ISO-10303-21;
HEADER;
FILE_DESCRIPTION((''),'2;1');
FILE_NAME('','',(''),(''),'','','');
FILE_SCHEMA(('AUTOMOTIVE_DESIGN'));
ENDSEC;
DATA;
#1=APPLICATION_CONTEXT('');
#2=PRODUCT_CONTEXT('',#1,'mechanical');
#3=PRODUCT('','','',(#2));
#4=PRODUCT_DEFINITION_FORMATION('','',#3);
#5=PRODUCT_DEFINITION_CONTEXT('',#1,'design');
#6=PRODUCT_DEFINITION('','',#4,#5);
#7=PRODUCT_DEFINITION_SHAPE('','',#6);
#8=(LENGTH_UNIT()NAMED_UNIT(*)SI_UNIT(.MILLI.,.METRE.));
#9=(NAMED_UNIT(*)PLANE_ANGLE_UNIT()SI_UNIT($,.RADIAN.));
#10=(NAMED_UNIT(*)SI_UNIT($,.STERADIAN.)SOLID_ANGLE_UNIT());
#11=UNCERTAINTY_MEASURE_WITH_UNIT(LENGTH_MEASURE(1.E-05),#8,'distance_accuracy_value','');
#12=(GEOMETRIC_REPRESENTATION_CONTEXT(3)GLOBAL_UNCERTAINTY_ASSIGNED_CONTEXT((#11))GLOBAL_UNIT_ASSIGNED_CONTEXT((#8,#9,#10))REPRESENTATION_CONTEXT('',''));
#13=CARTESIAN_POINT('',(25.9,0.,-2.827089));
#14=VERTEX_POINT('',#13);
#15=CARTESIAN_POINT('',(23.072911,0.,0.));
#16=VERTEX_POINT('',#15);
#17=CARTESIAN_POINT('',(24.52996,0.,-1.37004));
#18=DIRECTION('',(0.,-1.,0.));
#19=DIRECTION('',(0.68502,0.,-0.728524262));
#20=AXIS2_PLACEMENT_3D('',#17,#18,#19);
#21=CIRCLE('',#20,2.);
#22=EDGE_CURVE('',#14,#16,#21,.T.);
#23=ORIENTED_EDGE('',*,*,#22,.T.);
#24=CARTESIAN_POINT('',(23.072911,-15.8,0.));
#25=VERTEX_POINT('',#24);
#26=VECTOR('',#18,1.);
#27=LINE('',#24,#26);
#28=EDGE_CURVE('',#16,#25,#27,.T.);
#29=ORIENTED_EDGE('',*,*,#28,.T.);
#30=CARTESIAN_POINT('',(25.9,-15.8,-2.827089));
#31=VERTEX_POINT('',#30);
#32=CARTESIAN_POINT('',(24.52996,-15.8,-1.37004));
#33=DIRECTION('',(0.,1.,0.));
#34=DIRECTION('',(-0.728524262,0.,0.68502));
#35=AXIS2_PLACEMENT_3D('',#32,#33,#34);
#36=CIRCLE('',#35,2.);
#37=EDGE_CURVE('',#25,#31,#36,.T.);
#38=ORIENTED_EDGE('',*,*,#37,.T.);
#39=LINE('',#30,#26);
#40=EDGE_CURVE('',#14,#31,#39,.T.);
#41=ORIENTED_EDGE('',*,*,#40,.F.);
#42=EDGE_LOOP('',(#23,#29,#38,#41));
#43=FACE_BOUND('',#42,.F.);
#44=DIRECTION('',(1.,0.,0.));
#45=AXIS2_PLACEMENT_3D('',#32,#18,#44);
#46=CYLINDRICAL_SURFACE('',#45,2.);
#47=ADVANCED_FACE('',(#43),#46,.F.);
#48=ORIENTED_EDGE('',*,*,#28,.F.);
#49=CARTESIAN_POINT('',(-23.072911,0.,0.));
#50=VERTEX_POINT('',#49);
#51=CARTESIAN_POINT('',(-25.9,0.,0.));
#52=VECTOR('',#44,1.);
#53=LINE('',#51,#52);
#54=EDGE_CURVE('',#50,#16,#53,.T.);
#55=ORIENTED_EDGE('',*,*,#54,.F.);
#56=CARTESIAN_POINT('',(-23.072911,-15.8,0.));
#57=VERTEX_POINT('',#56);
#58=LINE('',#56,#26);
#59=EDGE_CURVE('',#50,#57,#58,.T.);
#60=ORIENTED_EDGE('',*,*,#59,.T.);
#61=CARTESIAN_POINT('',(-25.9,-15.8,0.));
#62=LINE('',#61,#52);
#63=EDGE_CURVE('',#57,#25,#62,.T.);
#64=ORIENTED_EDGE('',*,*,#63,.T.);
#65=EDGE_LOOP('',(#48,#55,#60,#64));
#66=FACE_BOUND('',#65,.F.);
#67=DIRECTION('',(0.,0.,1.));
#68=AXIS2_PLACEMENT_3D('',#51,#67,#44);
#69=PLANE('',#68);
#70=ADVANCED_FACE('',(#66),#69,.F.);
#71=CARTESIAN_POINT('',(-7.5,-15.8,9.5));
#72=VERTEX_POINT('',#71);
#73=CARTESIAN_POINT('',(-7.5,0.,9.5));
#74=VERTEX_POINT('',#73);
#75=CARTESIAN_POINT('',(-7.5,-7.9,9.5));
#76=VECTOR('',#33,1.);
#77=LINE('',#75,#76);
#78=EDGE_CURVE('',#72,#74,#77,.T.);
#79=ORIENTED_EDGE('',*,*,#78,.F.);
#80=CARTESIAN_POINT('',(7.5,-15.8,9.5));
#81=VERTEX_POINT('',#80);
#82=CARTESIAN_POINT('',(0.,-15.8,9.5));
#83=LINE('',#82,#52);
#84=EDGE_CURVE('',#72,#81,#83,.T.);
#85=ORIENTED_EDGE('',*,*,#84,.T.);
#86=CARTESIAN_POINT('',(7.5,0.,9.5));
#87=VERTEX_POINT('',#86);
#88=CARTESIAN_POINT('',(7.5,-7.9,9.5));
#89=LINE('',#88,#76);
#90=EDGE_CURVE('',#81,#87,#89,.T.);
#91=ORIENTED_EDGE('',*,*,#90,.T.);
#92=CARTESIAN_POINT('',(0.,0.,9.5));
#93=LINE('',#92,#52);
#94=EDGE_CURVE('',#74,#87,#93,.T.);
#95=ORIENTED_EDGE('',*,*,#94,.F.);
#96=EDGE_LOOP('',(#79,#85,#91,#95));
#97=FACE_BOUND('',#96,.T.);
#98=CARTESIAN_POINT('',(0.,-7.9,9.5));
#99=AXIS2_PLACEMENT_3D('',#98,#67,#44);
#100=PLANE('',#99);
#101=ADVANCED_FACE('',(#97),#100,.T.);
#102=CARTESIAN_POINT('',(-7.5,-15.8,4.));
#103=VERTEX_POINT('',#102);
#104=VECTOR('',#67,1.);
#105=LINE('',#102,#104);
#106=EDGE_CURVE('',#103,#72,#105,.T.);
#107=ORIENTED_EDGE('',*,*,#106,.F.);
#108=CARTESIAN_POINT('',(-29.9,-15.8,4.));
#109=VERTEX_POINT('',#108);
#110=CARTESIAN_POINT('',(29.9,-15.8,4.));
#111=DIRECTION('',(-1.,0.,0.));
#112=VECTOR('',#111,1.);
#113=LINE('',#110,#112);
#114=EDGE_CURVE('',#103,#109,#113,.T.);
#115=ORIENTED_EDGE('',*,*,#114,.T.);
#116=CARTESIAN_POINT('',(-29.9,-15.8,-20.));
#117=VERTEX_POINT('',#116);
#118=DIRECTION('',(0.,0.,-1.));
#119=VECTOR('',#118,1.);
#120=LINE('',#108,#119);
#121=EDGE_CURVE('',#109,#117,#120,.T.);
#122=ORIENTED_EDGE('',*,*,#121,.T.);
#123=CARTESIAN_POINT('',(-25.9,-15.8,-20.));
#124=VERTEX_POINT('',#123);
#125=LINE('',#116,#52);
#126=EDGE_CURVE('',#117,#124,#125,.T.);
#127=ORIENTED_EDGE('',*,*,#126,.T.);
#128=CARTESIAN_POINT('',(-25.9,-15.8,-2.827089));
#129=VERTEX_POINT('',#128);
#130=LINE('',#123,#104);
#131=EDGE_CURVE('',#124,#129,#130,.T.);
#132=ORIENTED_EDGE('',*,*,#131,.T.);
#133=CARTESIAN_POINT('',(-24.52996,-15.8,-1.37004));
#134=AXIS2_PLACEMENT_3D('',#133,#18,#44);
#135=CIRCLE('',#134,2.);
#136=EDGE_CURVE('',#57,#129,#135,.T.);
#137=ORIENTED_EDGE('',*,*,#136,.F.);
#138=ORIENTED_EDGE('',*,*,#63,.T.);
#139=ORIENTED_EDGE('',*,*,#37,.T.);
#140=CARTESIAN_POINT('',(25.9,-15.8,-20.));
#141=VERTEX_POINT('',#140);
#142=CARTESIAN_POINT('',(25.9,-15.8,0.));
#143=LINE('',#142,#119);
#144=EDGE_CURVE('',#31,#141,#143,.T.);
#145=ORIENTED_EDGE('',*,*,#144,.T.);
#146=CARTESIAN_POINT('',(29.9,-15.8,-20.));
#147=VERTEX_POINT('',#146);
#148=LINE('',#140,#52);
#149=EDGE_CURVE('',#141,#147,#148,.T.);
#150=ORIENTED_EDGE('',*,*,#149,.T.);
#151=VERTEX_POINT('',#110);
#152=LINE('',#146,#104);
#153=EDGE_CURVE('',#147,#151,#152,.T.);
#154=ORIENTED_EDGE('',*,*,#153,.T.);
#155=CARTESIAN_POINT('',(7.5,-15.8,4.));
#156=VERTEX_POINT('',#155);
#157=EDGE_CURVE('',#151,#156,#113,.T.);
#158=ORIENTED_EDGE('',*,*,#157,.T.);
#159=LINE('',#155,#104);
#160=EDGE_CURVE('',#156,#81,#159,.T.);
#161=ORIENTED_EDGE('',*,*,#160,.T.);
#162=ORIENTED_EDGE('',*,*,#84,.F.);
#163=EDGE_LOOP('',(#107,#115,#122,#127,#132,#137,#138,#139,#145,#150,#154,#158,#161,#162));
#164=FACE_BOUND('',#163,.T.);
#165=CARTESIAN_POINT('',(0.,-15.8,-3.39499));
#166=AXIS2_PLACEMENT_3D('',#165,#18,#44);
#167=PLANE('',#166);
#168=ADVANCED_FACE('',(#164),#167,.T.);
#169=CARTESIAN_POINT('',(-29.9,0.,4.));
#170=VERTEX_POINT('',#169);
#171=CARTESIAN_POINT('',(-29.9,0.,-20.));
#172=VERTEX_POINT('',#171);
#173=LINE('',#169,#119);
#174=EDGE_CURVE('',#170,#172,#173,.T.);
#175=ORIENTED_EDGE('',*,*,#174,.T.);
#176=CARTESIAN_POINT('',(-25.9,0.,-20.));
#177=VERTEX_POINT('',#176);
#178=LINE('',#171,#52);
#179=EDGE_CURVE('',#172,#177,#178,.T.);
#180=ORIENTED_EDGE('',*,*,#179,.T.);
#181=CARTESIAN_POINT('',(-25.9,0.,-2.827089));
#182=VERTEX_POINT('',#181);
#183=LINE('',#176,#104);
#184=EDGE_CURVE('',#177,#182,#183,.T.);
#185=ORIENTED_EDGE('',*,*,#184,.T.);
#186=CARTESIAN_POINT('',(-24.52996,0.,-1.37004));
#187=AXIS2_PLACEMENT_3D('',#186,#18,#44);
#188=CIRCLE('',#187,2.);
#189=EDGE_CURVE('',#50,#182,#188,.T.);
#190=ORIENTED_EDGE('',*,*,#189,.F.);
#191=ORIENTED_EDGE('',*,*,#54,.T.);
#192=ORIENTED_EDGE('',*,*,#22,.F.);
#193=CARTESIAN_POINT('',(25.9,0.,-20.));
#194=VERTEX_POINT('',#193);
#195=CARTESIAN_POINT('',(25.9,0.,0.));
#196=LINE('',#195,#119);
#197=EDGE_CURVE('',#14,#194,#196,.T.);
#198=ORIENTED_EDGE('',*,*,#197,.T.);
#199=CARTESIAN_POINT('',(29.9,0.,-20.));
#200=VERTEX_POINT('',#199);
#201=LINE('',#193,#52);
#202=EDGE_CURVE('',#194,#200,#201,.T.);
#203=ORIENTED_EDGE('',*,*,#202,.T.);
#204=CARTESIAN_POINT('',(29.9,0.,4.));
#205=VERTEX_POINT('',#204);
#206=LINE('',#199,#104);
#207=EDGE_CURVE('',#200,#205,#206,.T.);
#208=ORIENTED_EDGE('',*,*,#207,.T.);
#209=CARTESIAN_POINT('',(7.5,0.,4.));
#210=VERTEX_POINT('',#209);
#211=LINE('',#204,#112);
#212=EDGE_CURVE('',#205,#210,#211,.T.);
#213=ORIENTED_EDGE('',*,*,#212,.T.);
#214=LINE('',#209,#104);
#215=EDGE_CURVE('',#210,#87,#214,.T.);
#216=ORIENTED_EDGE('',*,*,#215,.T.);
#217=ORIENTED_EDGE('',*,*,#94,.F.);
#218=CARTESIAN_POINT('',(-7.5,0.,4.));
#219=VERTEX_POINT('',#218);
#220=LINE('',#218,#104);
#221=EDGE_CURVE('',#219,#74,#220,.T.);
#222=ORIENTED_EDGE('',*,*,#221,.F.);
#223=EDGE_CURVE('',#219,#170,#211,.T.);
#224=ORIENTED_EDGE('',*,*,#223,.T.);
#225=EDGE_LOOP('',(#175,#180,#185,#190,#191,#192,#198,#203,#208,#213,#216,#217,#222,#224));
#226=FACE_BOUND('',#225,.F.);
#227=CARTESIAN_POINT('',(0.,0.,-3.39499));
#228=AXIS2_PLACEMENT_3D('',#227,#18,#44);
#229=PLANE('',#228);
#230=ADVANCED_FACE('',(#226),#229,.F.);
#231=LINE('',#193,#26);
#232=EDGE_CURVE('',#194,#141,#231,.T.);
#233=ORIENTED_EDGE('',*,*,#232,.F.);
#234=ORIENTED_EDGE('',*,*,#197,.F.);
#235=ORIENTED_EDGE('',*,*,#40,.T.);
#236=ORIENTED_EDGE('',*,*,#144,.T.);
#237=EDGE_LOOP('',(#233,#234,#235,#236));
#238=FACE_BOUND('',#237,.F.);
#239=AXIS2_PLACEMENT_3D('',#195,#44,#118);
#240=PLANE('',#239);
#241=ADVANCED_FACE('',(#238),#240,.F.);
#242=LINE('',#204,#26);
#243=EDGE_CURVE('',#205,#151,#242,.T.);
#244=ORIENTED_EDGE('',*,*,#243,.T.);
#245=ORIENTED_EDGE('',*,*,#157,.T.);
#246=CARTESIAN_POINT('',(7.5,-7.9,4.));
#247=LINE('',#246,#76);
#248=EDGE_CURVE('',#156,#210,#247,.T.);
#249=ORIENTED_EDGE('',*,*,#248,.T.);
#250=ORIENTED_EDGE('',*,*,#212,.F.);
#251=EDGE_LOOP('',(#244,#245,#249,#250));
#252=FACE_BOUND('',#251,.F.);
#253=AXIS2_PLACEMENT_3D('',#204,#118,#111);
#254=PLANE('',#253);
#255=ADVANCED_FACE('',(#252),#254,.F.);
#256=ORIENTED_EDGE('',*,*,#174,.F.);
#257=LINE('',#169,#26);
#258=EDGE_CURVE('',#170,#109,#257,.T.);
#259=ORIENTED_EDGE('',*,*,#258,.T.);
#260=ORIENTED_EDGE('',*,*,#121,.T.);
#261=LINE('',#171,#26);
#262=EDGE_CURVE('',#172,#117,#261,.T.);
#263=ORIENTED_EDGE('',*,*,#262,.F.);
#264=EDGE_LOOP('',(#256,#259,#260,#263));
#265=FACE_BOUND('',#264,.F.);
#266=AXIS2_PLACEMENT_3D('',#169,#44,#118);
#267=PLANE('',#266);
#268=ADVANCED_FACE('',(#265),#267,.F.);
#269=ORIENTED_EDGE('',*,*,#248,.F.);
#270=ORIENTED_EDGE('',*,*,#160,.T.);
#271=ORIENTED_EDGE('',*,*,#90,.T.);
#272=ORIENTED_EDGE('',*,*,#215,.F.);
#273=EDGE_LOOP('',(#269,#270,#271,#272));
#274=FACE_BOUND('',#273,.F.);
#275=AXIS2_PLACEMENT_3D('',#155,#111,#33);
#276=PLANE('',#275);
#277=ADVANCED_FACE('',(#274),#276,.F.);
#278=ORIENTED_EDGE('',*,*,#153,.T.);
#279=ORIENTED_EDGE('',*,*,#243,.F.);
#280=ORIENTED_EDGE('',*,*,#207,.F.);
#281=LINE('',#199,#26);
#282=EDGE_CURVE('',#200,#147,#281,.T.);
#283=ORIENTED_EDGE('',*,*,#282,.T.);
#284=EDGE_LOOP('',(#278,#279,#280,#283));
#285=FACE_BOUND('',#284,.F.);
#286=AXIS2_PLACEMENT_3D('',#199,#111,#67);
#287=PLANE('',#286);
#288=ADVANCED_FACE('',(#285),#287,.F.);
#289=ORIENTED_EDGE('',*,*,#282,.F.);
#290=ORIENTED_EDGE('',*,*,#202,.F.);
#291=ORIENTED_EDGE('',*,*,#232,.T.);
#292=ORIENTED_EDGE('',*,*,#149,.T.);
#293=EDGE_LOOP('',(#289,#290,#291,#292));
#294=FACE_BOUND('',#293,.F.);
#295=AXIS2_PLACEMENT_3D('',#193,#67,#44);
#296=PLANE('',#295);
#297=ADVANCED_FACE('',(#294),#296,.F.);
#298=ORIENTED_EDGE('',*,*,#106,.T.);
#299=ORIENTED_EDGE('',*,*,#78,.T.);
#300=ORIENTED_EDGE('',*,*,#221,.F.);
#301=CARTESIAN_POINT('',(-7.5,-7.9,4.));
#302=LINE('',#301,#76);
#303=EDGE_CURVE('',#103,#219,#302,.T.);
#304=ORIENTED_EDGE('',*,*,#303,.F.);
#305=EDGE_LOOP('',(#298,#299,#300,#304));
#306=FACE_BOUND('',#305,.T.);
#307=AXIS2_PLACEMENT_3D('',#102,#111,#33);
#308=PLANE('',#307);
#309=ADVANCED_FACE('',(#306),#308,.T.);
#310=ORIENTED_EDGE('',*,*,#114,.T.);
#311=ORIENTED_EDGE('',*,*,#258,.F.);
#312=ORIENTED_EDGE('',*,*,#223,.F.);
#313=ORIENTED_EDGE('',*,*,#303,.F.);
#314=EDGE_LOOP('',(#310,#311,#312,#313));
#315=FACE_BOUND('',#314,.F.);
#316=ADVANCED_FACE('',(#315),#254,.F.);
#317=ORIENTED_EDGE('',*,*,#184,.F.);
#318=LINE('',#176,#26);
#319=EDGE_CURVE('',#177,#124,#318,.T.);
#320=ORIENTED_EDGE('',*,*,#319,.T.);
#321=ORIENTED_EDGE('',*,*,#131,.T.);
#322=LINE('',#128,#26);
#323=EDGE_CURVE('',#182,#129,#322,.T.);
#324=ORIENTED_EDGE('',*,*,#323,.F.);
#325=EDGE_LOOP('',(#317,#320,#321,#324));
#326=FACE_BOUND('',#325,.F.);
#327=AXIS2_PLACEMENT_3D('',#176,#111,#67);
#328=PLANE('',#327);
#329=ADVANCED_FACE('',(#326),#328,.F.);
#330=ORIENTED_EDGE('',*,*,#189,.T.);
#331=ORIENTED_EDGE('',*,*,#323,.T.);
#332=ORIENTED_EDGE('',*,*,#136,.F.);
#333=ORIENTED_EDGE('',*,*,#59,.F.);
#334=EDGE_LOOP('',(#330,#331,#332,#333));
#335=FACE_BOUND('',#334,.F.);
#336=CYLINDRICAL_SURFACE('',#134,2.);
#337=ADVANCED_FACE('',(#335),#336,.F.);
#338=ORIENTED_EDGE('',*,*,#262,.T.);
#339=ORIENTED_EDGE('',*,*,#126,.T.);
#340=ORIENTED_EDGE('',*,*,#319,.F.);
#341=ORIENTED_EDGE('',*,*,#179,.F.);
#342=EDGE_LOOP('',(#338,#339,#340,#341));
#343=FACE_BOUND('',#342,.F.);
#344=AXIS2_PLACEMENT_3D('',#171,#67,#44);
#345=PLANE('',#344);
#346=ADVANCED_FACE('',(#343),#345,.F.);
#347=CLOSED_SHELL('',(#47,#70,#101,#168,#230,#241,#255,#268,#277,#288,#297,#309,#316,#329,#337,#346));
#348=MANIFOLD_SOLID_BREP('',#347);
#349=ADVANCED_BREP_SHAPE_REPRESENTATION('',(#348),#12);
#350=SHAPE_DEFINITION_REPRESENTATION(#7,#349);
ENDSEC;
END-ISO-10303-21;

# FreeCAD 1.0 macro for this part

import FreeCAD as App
import Part
import Sketcher

V = App.Vector
Q = App.Units.Quantity


def add_polygon(sketch, points):
    """Adds a closed chain of lines whose ends are joined by coincident constraints."""
    first, n = sketch.GeometryCount, len(points)
    for a, b in zip(points, points[1:] + points[:1]):
        sketch.addGeometry(Part.LineSegment(App.Vector(*a, 0), App.Vector(*b, 0)), False)
    for i in range(n):
        sketch.addConstraint(Sketcher.Constraint("Coincident", first + i, 2, first + (i + 1) % n, 1))

doc = App.newDocument("Part")
body = doc.addObject("PartDesign::Body", "Body")

sketch1 = doc.addObject("Sketcher::SketchObject", "Sketch")
body.addObject(sketch1)
sketch1.AttachmentSupport = (doc.XZ_Plane, [""])
sketch1.MapMode = "FlatFace"
add_polygon(sketch1, [(-25.9, -20), (-25.9, 0), (25.9, 0), (25.9, -20), (29.9, -20), (29.9, 4), (-29.9, 4), (-29.9, -20)])
sketch1.addConstraint(Sketcher.Constraint("Vertical", 0))
sketch1.addConstraint(Sketcher.Constraint("Horizontal", 1))
sketch1.addConstraint(Sketcher.Constraint("Vertical", 2))
sketch1.addConstraint(Sketcher.Constraint("Horizontal", 3))
sketch1.addConstraint(Sketcher.Constraint("Vertical", 4))
sketch1.addConstraint(Sketcher.Constraint("Horizontal", 5))
sketch1.addConstraint(Sketcher.Constraint("Vertical", 6))
sketch1.addConstraint(Sketcher.Constraint("Horizontal", 7))
sketch1.addConstraint(Sketcher.Constraint("Symmetric", 0, 2, 1, 2, -1, 1))
sketch1.addConstraint(Sketcher.Constraint("Symmetric", 3, 2, 6, 2, -2))
sketch1.addConstraint(Sketcher.Constraint("DistanceX", 3, 1, 3, 2, Q("4 mm")))
sketch1.addConstraint(Sketcher.Constraint("DistanceY", 0, 1, 0, 2, Q("20 mm")))
sketch1.addConstraint(Sketcher.Constraint("DistanceY", 4, 1, 4, 2, Q("24 mm")))
sketch1.addConstraint(Sketcher.Constraint("DistanceX", 1, 1, 1, 2, Q("51.8 mm")))
pad1 = doc.addObject("PartDesign::Pad", "Pad")
body.addObject(pad1)
pad1.Profile = sketch1
pad1.Length = 15.8

sketch2 = doc.addObject("Sketcher::SketchObject", "Sketch001")
body.addObject(sketch2)
sketch2.AttachmentSupport = (doc.XY_Plane, [""])
sketch2.MapMode = "FlatFace"
sketch2.AttachmentOffset = App.Placement(V(0, 0, 4), App.Rotation())
add_polygon(sketch2, [(-7.5, 0), (-7.5, -15.8), (7.5, -15.8), (7.5, 0)])
sketch2.addConstraint(Sketcher.Constraint("Vertical", 0))
sketch2.addConstraint(Sketcher.Constraint("Horizontal", 1))
sketch2.addConstraint(Sketcher.Constraint("Vertical", 2))
sketch2.addConstraint(Sketcher.Constraint("Horizontal", 3))
sketch2.addConstraint(Sketcher.Constraint("Symmetric", 2, 2, 3, 2, -1, 1))
sketch2.addConstraint(Sketcher.Constraint("DistanceX", 1, 1, 1, 2, Q("15 mm")))
sketch2.addConstraint(Sketcher.Constraint("DistanceY", 0, 2, 0, 1, Q("15.8 mm")))
pad2 = doc.addObject("PartDesign::Pad", "Pad001")
body.addObject(pad2)
pad2.Profile = sketch2
pad2.Length = 5.5

sketch3 = doc.addObject("Sketcher::SketchObject", "Sketch002")
body.addObject(sketch3)
sketch3.AttachmentSupport = (doc.XZ_Plane, [""])
sketch3.MapMode = "FlatFace"
sketch3.AttachmentOffset = App.Placement(V(0, 0, 15.8), App.Rotation())
sketch3.addGeometry(Part.Circle(V(-24.52996, -1.37004, 0), V(0, 0, 1), 2), False)
sketch3.addGeometry(Part.Circle(V(24.52996, -1.37004, 0), V(0, 0, 1), 2), False)
sketch3.addConstraint(Sketcher.Constraint("Equal", 0, 1))
sketch3.addConstraint(Sketcher.Constraint("Symmetric", 0, 3, 1, 3, -2))
sketch3.addConstraint(Sketcher.Constraint("Diameter", 0, Q("4 mm")))
sketch3.addConstraint(Sketcher.Constraint("DistanceX", 0, 3, -1, 1, Q("24.52996 mm")))
sketch3.addConstraint(Sketcher.Constraint("DistanceY", 0, 3, -1, 1, Q("1.37004 mm")))
pocket1 = doc.addObject("PartDesign::Pocket", "Pocket")
body.addObject(pocket1)
pocket1.Profile = sketch3
pocket1.Type = "ThroughAll"

doc.recompute()
